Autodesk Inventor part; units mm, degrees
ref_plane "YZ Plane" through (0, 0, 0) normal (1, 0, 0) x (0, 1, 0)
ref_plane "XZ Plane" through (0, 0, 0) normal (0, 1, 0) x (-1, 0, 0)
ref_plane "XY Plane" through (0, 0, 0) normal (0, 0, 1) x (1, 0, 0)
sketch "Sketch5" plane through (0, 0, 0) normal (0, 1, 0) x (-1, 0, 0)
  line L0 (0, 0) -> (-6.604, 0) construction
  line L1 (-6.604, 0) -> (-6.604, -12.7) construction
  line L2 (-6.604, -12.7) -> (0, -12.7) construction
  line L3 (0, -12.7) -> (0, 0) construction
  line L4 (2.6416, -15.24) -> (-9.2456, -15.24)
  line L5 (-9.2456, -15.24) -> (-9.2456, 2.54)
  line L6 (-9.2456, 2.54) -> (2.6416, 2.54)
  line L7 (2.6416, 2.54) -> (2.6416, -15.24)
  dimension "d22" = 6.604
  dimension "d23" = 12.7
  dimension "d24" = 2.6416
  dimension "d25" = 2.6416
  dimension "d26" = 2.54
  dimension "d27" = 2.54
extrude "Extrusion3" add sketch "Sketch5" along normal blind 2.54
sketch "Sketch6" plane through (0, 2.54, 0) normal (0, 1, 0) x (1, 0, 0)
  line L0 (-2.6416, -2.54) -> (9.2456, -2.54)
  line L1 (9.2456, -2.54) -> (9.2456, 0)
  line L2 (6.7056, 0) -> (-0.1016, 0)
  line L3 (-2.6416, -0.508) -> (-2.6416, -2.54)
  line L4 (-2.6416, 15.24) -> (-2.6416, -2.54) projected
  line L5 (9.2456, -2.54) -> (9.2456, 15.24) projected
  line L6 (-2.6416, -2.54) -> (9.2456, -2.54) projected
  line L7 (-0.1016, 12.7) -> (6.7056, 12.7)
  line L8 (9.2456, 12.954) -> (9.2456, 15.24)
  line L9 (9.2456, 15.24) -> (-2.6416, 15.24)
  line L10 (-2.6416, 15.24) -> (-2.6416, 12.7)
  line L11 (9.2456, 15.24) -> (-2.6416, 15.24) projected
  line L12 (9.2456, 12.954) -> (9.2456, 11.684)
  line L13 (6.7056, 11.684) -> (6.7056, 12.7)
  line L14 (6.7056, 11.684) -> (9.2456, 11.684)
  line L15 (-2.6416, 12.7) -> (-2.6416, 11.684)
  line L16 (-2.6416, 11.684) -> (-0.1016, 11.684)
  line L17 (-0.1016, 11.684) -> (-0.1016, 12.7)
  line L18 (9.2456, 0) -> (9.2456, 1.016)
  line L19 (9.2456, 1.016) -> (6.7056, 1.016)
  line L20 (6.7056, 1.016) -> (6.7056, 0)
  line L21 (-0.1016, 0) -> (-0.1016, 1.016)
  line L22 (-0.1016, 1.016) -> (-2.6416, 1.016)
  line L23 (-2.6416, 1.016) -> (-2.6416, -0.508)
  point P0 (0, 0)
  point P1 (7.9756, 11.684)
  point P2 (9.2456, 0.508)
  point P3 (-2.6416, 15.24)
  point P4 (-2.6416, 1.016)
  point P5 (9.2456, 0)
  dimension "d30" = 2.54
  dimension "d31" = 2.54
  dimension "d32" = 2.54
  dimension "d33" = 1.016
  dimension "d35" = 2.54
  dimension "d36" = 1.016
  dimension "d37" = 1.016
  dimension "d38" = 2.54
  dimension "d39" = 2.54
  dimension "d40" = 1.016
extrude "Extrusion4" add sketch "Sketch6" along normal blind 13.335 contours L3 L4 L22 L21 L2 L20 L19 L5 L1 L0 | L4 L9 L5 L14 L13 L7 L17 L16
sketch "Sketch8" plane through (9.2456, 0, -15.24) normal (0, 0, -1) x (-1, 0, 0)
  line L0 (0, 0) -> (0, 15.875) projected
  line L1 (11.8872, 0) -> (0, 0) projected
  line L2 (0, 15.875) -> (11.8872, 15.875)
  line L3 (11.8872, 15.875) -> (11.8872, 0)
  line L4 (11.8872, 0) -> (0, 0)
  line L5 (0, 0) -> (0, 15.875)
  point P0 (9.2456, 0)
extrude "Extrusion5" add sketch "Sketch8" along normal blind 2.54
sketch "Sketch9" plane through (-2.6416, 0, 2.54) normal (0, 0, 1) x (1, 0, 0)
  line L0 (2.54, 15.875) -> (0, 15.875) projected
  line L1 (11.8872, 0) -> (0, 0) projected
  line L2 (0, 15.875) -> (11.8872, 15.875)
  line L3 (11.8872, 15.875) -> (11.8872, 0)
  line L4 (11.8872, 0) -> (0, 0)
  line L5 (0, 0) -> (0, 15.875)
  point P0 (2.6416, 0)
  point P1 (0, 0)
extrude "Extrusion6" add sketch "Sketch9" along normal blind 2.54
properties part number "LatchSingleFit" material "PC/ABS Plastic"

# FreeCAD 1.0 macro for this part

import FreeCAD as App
import Part
import Sketcher
Q = App.Units.Quantity


def add_polygon(sketch, points):
    """Adds a closed chain of lines whose ends are joined by coincident constraints."""
    first, n = sketch.GeometryCount, len(points)
    for a, b in zip(points, points[1:] + points[:1]):
        sketch.addGeometry(Part.LineSegment(App.Vector(*a, 0), App.Vector(*b, 0)), False)
    for i in range(n):
        sketch.addConstraint(Sketcher.Constraint("Coincident", first + i, 2, first + (i + 1) % n, 1))

doc = App.newDocument("Part")
params = doc.addObject("Spreadsheet::Sheet", "Params")
for row, (alias, value) in enumerate([
    ("sketch1_height", "0.7 in"),
    ("sketch1_width", "0.468 in"),
    ("pad1_length", "0.1 in"),
    ("sketch2_width", "0.1 in"),
    ("sketch2_height", "0.04 in"),
    ("sketch2_width2", "0.468 in"),
    ("pad2_length", "0.525 in"),
    ("sketch3_width", "0.468 in"),
    ("sketch3_height", "0.625 in"),
    ("pad3_length", "0.1 in"),
    ("sketch4_width", "0.468 in"),
    ("sketch4_height", "0.625 in"),
    ("pad4_length", "0.1 in"),
], start=1):
    params.set(f"A{row}", alias)
    params.set(f"B{row}", "=" + value)
    params.setAlias(f"B{row}", alias)

body = doc.addObject("PartDesign::Body", "Body")

# Sketch on XZ plane
sketch1 = doc.addObject("Sketcher::SketchObject", "Sketch")
body.addObject(sketch1)
sketch1.AttachmentSupport = (doc.XZ_Plane, [""])
sketch1.MapMode = "FlatFace"
add_polygon(sketch1, [(9, -15), (-3, -15), (-3, 3), (9, 3)])  # lines 0-3
sketch1.addConstraint(Sketcher.Constraint("Horizontal", 0))
sketch1.addConstraint(Sketcher.Constraint("Vertical", 1))
sketch1.addConstraint(Sketcher.Constraint("Horizontal", 2))
sketch1.addConstraint(Sketcher.Constraint("Vertical", 3))
sketch1.addConstraint(Sketcher.Constraint("DistanceY", -1, 1, 1, 2, Q("0.1 in")))
sketch1.addConstraint(Sketcher.Constraint("DistanceY", 1, 1, 1, 2, Q("0.7 in")))
sketch1.addConstraint(Sketcher.Constraint("DistanceX", 0, 2, -1, 1, Q("0.104 in")))
sketch1.addConstraint(Sketcher.Constraint("DistanceX", 0, 2, 0, 1, Q("0.468 in")))
sketch1.setExpression("Constraints[9]", "Params.sketch1_height")
sketch1.setExpression("Constraints[11]", "Params.sketch1_width")
pad1 = doc.addObject("PartDesign::Pad", "Pad")
body.addObject(pad1)
pad1.Profile = sketch1
pad1.setExpression("Length", "Params.pad1_length")
pad1.Reversed = True

# Sketch on XZ plane
sketch2 = doc.addObject("Sketcher::SketchObject", "Sketch001")
body.addObject(sketch2)
sketch2.AttachmentSupport = (doc.XZ_Plane, [""])
sketch2.MapMode = "FlatFace"
sketch2.AttachmentOffset = App.Placement(App.Vector(0, 0, -0.1 * 25.4), App.Rotation())
add_polygon(sketch2, [(-2.6, -1), (-2.6, 2.5), (9.2, 2.5), (9.2, -1), (6.7, -1), (6.7, 0), (-0.1, 0), (-0.1, -1)])  # lines 0-7
add_polygon(sketch2, [(-2.6, -15.2), (-2.6, -11.7), (-0.1, -11.7), (-0.1, -12.7), (6.7, -12.7), (6.7, -11.7), (9.2, -11.7), (9.2, -15.2)])  # lines 8-15
sketch2.addConstraint(Sketcher.Constraint("Vertical", 0))
sketch2.addConstraint(Sketcher.Constraint("Horizontal", 1))
sketch2.addConstraint(Sketcher.Constraint("Vertical", 2))
sketch2.addConstraint(Sketcher.Constraint("Horizontal", 3))
sketch2.addConstraint(Sketcher.Constraint("Vertical", 4))
sketch2.addConstraint(Sketcher.Constraint("Horizontal", 5))
sketch2.addConstraint(Sketcher.Constraint("Vertical", 6))
sketch2.addConstraint(Sketcher.Constraint("Horizontal", 7))
sketch2.addConstraint(Sketcher.Constraint("Vertical", 8))
sketch2.addConstraint(Sketcher.Constraint("Horizontal", 9))
sketch2.addConstraint(Sketcher.Constraint("Vertical", 10))
sketch2.addConstraint(Sketcher.Constraint("Horizontal", 11))
sketch2.addConstraint(Sketcher.Constraint("Vertical", 12))
sketch2.addConstraint(Sketcher.Constraint("Horizontal", 13))
sketch2.addConstraint(Sketcher.Constraint("Vertical", 14))
sketch2.addConstraint(Sketcher.Constraint("Horizontal", 15))
sketch2.addConstraint(Sketcher.Constraint("PointOnObject", 4, 2, -1))
sketch2.addConstraint(Sketcher.Constraint("Horizontal", 3, 2, 6, 2))
sketch2.addConstraint(Sketcher.Constraint("Horizontal", 9, 2, 12, 2))
sketch2.addConstraint(Sketcher.Constraint("Vertical", 7, 2, 8, 2))
sketch2.addConstraint(Sketcher.Constraint("Vertical", 6, 2, 9, 2))
sketch2.addConstraint(Sketcher.Constraint("Vertical", 4, 2, 11, 2))
sketch2.addConstraint(Sketcher.Constraint("Vertical", 2, 2, 13, 2))
sketch2.addConstraint(Sketcher.Constraint("Equal", 3, 7))
sketch2.addConstraint(Sketcher.Constraint("Equal", 2, 8))
sketch2.addConstraint(Sketcher.Constraint("Equal", 6, 10))
sketch2.addConstraint(Sketcher.Constraint("DistanceX", 3, 2, 3, 1, Q("0.1 in")))
sketch2.addConstraint(Sketcher.Constraint("DistanceY", 4, 1, 4, 2, Q("0.04 in")))
sketch2.addConstraint(Sketcher.Constraint("DistanceY", -1, 1, 0, 2, Q("0.1 in")))
sketch2.addConstraint(Sketcher.Constraint("DistanceY", 10, 2, -1, 1, Q("0.5 in")))
sketch2.addConstraint(Sketcher.Constraint("DistanceX", 1, 1, 1, 2, Q("0.468 in")))
sketch2.addConstraint(Sketcher.Constraint("DistanceX", 0, 2, -1, 1, Q("0.104 in")))
sketch2.setExpression("Constraints[42]", "Params.sketch2_width")
sketch2.setExpression("Constraints[43]", "Params.sketch2_height")
sketch2.setExpression("Constraints[46]", "Params.sketch2_width2")
pad2 = doc.addObject("PartDesign::Pad", "Pad001")
body.addObject(pad2)
pad2.Profile = sketch2
pad2.setExpression("Length", "Params.pad2_length")
pad2.Reversed = True

# Sketch on XY plane
sketch3 = doc.addObject("Sketcher::SketchObject", "Sketch002")
body.addObject(sketch3)
sketch3.AttachmentSupport = (doc.XY_Plane, [""])
sketch3.MapMode = "FlatFace"
sketch3.AttachmentOffset = App.Placement(App.Vector(0, 0, -0.6 * 25.4), App.Rotation())
add_polygon(sketch3, [(9, 16), (9, 0), (-3, 0), (-3, 16)])  # lines 0-3
sketch3.addConstraint(Sketcher.Constraint("Vertical", 0))
sketch3.addConstraint(Sketcher.Constraint("Horizontal", 1))
sketch3.addConstraint(Sketcher.Constraint("Vertical", 2))
sketch3.addConstraint(Sketcher.Constraint("Horizontal", 3))
sketch3.addConstraint(Sketcher.Constraint("PointOnObject", 0, 2, -1))
sketch3.addConstraint(Sketcher.Constraint("DistanceX", 1, 2, 1, 1, Q("0.468 in")))
sketch3.addConstraint(Sketcher.Constraint("DistanceY", 0, 2, 0, 1, Q("0.625 in")))
sketch3.addConstraint(Sketcher.Constraint("DistanceX", -1, 1, 0, 2, Q("0.364 in")))
sketch3.setExpression("Constraints[9]", "Params.sketch3_width")
sketch3.setExpression("Constraints[10]", "Params.sketch3_height")
pad3 = doc.addObject("PartDesign::Pad", "Pad002")
body.addObject(pad3)
pad3.Profile = sketch3
pad3.setExpression("Length", "Params.pad3_length")
pad3.Reversed = True

# Sketch on XY plane
sketch4 = doc.addObject("Sketcher::SketchObject", "Sketch003")
body.addObject(sketch4)
sketch4.AttachmentSupport = (doc.XY_Plane, [""])
sketch4.MapMode = "FlatFace"
sketch4.AttachmentOffset = App.Placement(App.Vector(0, 0, 0.1 * 25.4), App.Rotation())
add_polygon(sketch4, [(9, 16), (-3, 16), (-3, 0), (9, 0)])  # lines 0-3
sketch4.addConstraint(Sketcher.Constraint("Horizontal", 0))
sketch4.addConstraint(Sketcher.Constraint("Vertical", 1))
sketch4.addConstraint(Sketcher.Constraint("Horizontal", 2))
sketch4.addConstraint(Sketcher.Constraint("Vertical", 3))
sketch4.addConstraint(Sketcher.Constraint("PointOnObject", 1, 2, -1))
sketch4.addConstraint(Sketcher.Constraint("DistanceX", 0, 2, 0, 1, Q("0.468 in")))
sketch4.addConstraint(Sketcher.Constraint("DistanceY", 1, 2, 1, 1, Q("0.625 in")))
sketch4.addConstraint(Sketcher.Constraint("DistanceX", 0, 2, -1, 1, Q("0.104 in")))
sketch4.setExpression("Constraints[9]", "Params.sketch4_width")
sketch4.setExpression("Constraints[10]", "Params.sketch4_height")
pad4 = doc.addObject("PartDesign::Pad", "Pad003")
body.addObject(pad4)
pad4.Profile = sketch4
pad4.setExpression("Length", "Params.pad4_length")

doc.recompute()
